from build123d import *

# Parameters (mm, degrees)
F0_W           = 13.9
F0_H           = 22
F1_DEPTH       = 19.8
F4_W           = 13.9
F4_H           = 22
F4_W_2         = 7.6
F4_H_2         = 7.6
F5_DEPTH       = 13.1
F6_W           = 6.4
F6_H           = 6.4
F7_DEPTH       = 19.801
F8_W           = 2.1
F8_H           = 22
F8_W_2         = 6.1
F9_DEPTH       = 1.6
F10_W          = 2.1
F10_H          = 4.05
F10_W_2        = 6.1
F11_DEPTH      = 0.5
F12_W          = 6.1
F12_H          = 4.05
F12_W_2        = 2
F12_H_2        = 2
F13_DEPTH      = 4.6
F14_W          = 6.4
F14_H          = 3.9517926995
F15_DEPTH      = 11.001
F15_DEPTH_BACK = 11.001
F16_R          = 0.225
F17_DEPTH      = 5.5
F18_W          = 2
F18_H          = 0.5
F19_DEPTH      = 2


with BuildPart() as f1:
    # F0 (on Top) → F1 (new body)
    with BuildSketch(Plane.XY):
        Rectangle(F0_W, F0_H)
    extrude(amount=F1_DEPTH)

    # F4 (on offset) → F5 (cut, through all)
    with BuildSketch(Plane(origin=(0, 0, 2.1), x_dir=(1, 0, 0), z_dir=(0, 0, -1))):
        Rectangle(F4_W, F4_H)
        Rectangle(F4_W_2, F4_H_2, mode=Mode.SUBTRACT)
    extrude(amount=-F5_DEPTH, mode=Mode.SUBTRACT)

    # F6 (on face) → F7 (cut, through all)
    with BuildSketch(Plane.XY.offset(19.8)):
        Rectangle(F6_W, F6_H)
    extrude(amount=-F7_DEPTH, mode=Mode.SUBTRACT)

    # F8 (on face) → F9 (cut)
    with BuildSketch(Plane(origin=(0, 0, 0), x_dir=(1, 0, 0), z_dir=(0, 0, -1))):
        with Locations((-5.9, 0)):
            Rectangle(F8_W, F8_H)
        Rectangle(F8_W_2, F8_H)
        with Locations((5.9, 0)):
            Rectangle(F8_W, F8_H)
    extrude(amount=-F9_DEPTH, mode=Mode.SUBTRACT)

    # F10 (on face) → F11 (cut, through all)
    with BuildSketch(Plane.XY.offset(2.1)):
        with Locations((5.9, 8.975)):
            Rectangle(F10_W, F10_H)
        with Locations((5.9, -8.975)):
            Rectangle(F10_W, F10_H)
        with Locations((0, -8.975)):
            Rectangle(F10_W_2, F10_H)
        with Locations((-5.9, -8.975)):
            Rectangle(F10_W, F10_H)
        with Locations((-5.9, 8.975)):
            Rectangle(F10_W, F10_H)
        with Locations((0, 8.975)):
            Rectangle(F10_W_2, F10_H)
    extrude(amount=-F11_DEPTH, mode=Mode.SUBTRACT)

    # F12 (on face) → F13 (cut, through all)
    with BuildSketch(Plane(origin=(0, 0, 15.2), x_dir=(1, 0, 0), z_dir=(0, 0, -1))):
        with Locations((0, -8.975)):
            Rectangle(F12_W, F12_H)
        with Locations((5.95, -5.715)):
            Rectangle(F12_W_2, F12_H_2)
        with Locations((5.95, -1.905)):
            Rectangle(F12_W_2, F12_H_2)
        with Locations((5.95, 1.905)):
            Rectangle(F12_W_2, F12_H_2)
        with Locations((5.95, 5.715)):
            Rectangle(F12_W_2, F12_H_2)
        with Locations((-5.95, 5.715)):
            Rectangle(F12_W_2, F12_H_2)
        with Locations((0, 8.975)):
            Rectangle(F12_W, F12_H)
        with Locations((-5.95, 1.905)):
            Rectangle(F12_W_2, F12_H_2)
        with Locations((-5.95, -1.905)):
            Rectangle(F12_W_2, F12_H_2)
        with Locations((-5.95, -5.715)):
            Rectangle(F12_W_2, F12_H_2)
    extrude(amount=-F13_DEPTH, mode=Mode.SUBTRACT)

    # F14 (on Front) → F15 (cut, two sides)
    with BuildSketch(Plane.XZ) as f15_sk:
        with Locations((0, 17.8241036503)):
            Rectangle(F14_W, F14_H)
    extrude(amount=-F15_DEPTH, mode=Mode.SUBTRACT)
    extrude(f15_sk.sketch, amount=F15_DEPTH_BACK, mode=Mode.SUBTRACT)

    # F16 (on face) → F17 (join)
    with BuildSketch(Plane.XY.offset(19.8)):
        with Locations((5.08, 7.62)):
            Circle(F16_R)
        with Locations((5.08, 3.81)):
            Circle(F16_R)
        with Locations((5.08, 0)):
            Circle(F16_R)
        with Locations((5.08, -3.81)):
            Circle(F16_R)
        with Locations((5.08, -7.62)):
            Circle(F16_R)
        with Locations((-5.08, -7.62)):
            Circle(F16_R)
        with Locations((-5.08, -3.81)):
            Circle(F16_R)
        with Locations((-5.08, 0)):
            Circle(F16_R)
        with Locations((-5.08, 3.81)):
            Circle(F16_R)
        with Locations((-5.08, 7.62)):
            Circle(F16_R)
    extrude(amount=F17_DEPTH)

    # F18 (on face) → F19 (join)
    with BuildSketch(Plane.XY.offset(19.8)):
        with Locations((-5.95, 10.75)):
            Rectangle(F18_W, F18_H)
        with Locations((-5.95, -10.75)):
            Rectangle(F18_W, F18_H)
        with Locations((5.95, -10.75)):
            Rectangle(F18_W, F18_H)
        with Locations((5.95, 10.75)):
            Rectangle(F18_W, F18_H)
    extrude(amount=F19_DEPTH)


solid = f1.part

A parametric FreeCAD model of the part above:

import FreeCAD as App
import Part
import Sketcher

V = App.Vector
Q = App.Units.Quantity


def add_polygon(sketch, points):
    """Adds a closed chain of lines whose ends are joined by coincident constraints."""
    first, n = sketch.GeometryCount, len(points)
    for a, b in zip(points, points[1:] + points[:1]):
        sketch.addGeometry(Part.LineSegment(App.Vector(*a, 0), App.Vector(*b, 0)), False)
    for i in range(n):
        sketch.addConstraint(Sketcher.Constraint("Coincident", first + i, 2, first + (i + 1) % n, 1))

doc = App.newDocument("Part")
params = doc.addObject("Spreadsheet::Sheet", "Params")
for row, (alias, value) in enumerate([
    ("sketch1_height", "22 mm"),
    ("sketch1_width", "13.9 mm"),
    ("pad1_length", "19.8 mm"),
    ("sketch2_height", "22 mm"),
    ("sketch2_width", "13.9 mm"),
    ("sketch2_width2", "7.6 mm"),
    ("pocket1_length", "13.1 mm"),
    ("sketch3_width", "6.4 mm"),
    ("sketch4_height", "22 mm"),
    ("sketch4_width", "2.1 mm"),
    ("sketch4_width2", "6.1 mm"),
    ("pocket3_length", "1.6 mm"),
    ("sketch5_width", "2.1 mm"),
    ("sketch5_width2", "6.1 mm"),
    ("sketch5_height", "4.05 mm"),
    ("sketch6_width", "2 mm"),
    ("sketch6_width2", "6.1 mm"),
    ("sketch6_height", "4.05 mm"),
    ("sketch7_width", "6.4 mm"),
    ("sketch8_diameter", "0.45 mm"),
    ("pad2_length", "5.5 mm"),
    ("sketch9_width", "2 mm"),
    ("sketch9_height", "0.5 mm"),
    ("pad3_length", "2 mm"),
], start=1):
    params.set(f"A{row}", alias)
    params.set(f"B{row}", "=" + value)
    params.setAlias(f"B{row}", alias)

body = doc.addObject("PartDesign::Body", "Body")

# Sketch on XY plane
sketch1 = doc.addObject("Sketcher::SketchObject", "Sketch")
body.addObject(sketch1)
sketch1.AttachmentSupport = (doc.XY_Plane, [""])
sketch1.MapMode = "FlatFace"
add_polygon(sketch1, [(-7, 11), (-7, -11), (7, -11), (7, 11)])  # lines 0-3
sketch1.addConstraint([
    Sketcher.Constraint("Vertical", 0),
    Sketcher.Constraint("Horizontal", 1),
    Sketcher.Constraint("Vertical", 2),
    Sketcher.Constraint("Horizontal", 3),
    Sketcher.Constraint("Symmetric", 0, 2, 2, 2, -1, 1),
    Sketcher.Constraint("DistanceY", 0, 2, 0, 1, Q("22 mm")),
    Sketcher.Constraint("DistanceX", 1, 1, 1, 2, Q("13.9 mm")),
])
sketch1.setExpression("Constraints[9]", "Params.sketch1_height")
sketch1.setExpression("Constraints[10]", "Params.sketch1_width")
pad1 = doc.addObject("PartDesign::Pad", "Pad")
body.addObject(pad1)
pad1.Profile = sketch1
pad1.setExpression("Length", "Params.pad1_length")

# Sketch on XY plane
sketch2 = doc.addObject("Sketcher::SketchObject", "Sketch001")
body.addObject(sketch2)
sketch2.AttachmentSupport = (doc.XY_Plane, [""])
sketch2.MapMode = "FlatFace"
sketch2.AttachmentOffset = App.Placement(V(0, 0, 2.1), App.Rotation())
add_polygon(sketch2, [(-7, -11), (-7, 11), (7, 11), (7, -11)])  # lines 0-3
add_polygon(sketch2, [(4, 4), (-4, 4), (-4, -4), (4, -4)])  # lines 4-7
sketch2.addConstraint([
    Sketcher.Constraint("Vertical", 0),
    Sketcher.Constraint("Horizontal", 1),
    Sketcher.Constraint("Vertical", 2),
    Sketcher.Constraint("Horizontal", 3),
    Sketcher.Constraint("Horizontal", 4),
    Sketcher.Constraint("Vertical", 5),
    Sketcher.Constraint("Horizontal", 6),
    Sketcher.Constraint("Vertical", 7),
    Sketcher.Constraint("Symmetric", 0, 2, 2, 2, -1, 1),
    Sketcher.Constraint("Symmetric", 4, 2, 6, 2, -1, 1),
    Sketcher.Constraint("Equal", 6, 5),
    Sketcher.Constraint("DistanceY", 0, 1, 0, 2, Q("22 mm")),
    Sketcher.Constraint("DistanceX", 1, 1, 1, 2, Q("13.9 mm")),
    Sketcher.Constraint("DistanceX", 4, 2, 4, 1, Q("7.6 mm")),
])
sketch2.setExpression("Constraints[19]", "Params.sketch2_height")
sketch2.setExpression("Constraints[20]", "Params.sketch2_width")
sketch2.setExpression("Constraints[21]", "Params.sketch2_width2")
pocket1 = doc.addObject("PartDesign::Pocket", "Pocket")
body.addObject(pocket1)
pocket1.Profile = sketch2
pocket1.setExpression("Length", "Params.pocket1_length")
pocket1.Reversed = True

# Sketch on XY plane
sketch3 = doc.addObject("Sketcher::SketchObject", "Sketch002")
body.addObject(sketch3)
sketch3.AttachmentSupport = (doc.XY_Plane, [""])
sketch3.MapMode = "FlatFace"
sketch3.AttachmentOffset = App.Placement(V(0, 0, 19.8), App.Rotation())
add_polygon(sketch3, [(-3, 3), (-3, -3), (3, -3), (3, 3)])  # lines 0-3
sketch3.addConstraint([
    Sketcher.Constraint("Vertical", 0),
    Sketcher.Constraint("Horizontal", 1),
    Sketcher.Constraint("Vertical", 2),
    Sketcher.Constraint("Horizontal", 3),
    Sketcher.Constraint("Symmetric", 0, 2, 2, 2, -1, 1),
    Sketcher.Constraint("Equal", 3, 0),
    Sketcher.Constraint("DistanceX", 1, 1, 1, 2, Q("6.4 mm")),
])
sketch3.setExpression("Constraints[10]", "Params.sketch3_width")
pocket2 = doc.addObject("PartDesign::Pocket", "Pocket001")
body.addObject(pocket2)
pocket2.Profile = sketch3
pocket2.Type = "ThroughAll"

# Sketch on XY plane
sketch4 = doc.addObject("Sketcher::SketchObject", "Sketch003")
body.addObject(sketch4)
sketch4.AttachmentSupport = (doc.XY_Plane, [""])
sketch4.MapMode = "FlatFace"
add_polygon(sketch4, [(-7, -11), (-7, 11), (-4.8, 11), (-4.8, -11)])  # lines 0-3
add_polygon(sketch4, [(-3, -11), (-3, 11), (3, 11), (3, -11)])  # lines 4-7
add_polygon(sketch4, [(4.8, -11), (4.8, 11), (7, 11), (7, -11)])  # lines 8-11
sketch4.addConstraint([
    Sketcher.Constraint("Vertical", 0),
    Sketcher.Constraint("Horizontal", 1),
    Sketcher.Constraint("Vertical", 2),
    Sketcher.Constraint("Horizontal", 3),
    Sketcher.Constraint("Vertical", 4),
    Sketcher.Constraint("Horizontal", 5),
    Sketcher.Constraint("Vertical", 6),
    Sketcher.Constraint("Horizontal", 7),
    Sketcher.Constraint("Vertical", 8),
    Sketcher.Constraint("Horizontal", 9),
    Sketcher.Constraint("Vertical", 10),
    Sketcher.Constraint("Horizontal", 11),
    Sketcher.Constraint("Symmetric", 4, 2, 6, 2, -1, 1),
    Sketcher.Constraint("Symmetric", 2, 2, 8, 2, -1, 1),
    Sketcher.Constraint("Symmetric", 0, 2, 10, 2, -1, 1),
    Sketcher.Constraint("Horizontal", 1, 2, 4, 2),
    Sketcher.Constraint("Horizontal", 3, 2, 6, 2),
    Sketcher.Constraint("DistanceY", 0, 1, 0, 2, Q("22 mm")),
    Sketcher.Constraint("DistanceX", 1, 1, 1, 2, Q("2.1 mm")),
    Sketcher.Constraint("DistanceX", 5, 1, 5, 2, Q("6.1 mm")),
    Sketcher.Constraint("DistanceX", 0, 2, 5, 2, Q("10 mm")),
])
sketch4.setExpression("Constraints[29]", "Params.sketch4_height")
sketch4.setExpression("Constraints[30]", "Params.sketch4_width")
sketch4.setExpression("Constraints[31]", "Params.sketch4_width2")
pocket3 = doc.addObject("PartDesign::Pocket", "Pocket002")
body.addObject(pocket3)
pocket3.Profile = sketch4
pocket3.setExpression("Length", "Params.pocket3_length")
pocket3.Reversed = True

# Sketch on XY plane
sketch5 = doc.addObject("Sketcher::SketchObject", "Sketch004")
body.addObject(sketch5)
sketch5.AttachmentSupport = (doc.XY_Plane, [""])
sketch5.MapMode = "FlatFace"
sketch5.AttachmentOffset = App.Placement(V(0, 0, 2.1), App.Rotation())
add_polygon(sketch5, [(4.8, 11), (4.8, 7), (7, 7), (7, 11)])  # lines 0-3
add_polygon(sketch5, [(4.8, -7), (4.8, -11), (7, -11), (7, -7)])  # lines 4-7
add_polygon(sketch5, [(-3, -7), (-3, -11), (3, -11), (3, -7)])  # lines 8-11
add_polygon(sketch5, [(-7, -7), (-7, -11), (-4.8, -11), (-4.8, -7)])  # lines 12-15
add_polygon(sketch5, [(-7, 11), (-7, 7), (-4.8, 7), (-4.8, 11)])  # lines 16-19
add_polygon(sketch5, [(-3, 11), (-3, 7), (3, 7), (3, 11)])  # lines 20-23
sketch5.addConstraint([
    Sketcher.Constraint("Vertical", 0),
    Sketcher.Constraint("Horizontal", 1),
    Sketcher.Constraint("Vertical", 2),
    Sketcher.Constraint("Horizontal", 3),
    Sketcher.Constraint("Vertical", 4),
    Sketcher.Constraint("Horizontal", 5),
    Sketcher.Constraint("Vertical", 6),
    Sketcher.Constraint("Horizontal", 7),
    Sketcher.Constraint("Vertical", 8),
    Sketcher.Constraint("Horizontal", 9),
    Sketcher.Constraint("Vertical", 10),
    Sketcher.Constraint("Horizontal", 11),
    Sketcher.Constraint("Vertical", 12),
    Sketcher.Constraint("Horizontal", 13),
    Sketcher.Constraint("Vertical", 14),
    Sketcher.Constraint("Horizontal", 15),
    Sketcher.Constraint("Vertical", 16),
    Sketcher.Constraint("Horizontal", 17),
    Sketcher.Constraint("Vertical", 18),
    Sketcher.Constraint("Horizontal", 19),
    Sketcher.Constraint("Vertical", 20),
    Sketcher.Constraint("Horizontal", 21),
    Sketcher.Constraint("Vertical", 22),
    Sketcher.Constraint("Horizontal", 23),
    Sketcher.Constraint("Symmetric", 2, 2, 12, 2, -1, 1),
    Sketcher.Constraint("Symmetric", 0, 2, 14, 2, -1, 1),
    Sketcher.Constraint("Symmetric", 6, 2, 16, 2, -1, 1),
    Sketcher.Constraint("Symmetric", 4, 2, 18, 2, -1, 1),
    Sketcher.Constraint("Symmetric", 10, 2, 20, 2, -1, 1),
    Sketcher.Constraint("Symmetric", 8, 2, 22, 2, -1, 1),
    Sketcher.Constraint("Symmetric", 5, 2, 12, 2, -2),
    Sketcher.Constraint("Symmetric", 7, 2, 14, 2, -2),
    Sketcher.Constraint("Horizontal", 5, 2, 8, 2),
    Sketcher.Constraint("Horizontal", 7, 2, 10, 2),
    Sketcher.Constraint("Vertical", 11, 2, 20, 2),
    Sketcher.Constraint("DistanceX", 1, 1, 1, 2, Q("2.1 mm")),
    Sketcher.Constraint("DistanceX", 9, 1, 9, 2, Q("6.1 mm")),
    Sketcher.Constraint("DistanceY", -1, 1, 2, 2, Q("11 mm")),
    Sketcher.Constraint("DistanceX", 8, 2, 5, 2, Q("10 mm")),
    Sketcher.Constraint("DistanceY", 0, 2, 0, 1, Q("4.05 mm")),
])
sketch5.setExpression("Constraints[59]", "Params.sketch5_width")
sketch5.setExpression("Constraints[60]", "Params.sketch5_width2")
sketch5.setExpression("Constraints[63]", "Params.sketch5_height")
pocket4 = doc.addObject("PartDesign::Pocket", "Pocket003")
body.addObject(pocket4)
pocket4.Profile = sketch5
pocket4.Type = "ThroughAll"

# Sketch on XY plane
sketch6 = doc.addObject("Sketcher::SketchObject", "Sketch005")
body.addObject(sketch6)
sketch6.AttachmentSupport = (doc.XY_Plane, [""])
sketch6.MapMode = "FlatFace"
sketch6.AttachmentOffset = App.Placement(V(0, 0, 15.2), App.Rotation())
add_polygon(sketch6, [(-3, 7), (-3, 11), (3, 11), (3, 7)])  # lines 0-3
add_polygon(sketch6, [(5, 4.7), (5, 6.7), (7, 6.7), (7, 4.7)])  # lines 4-7
add_polygon(sketch6, [(5, 0.9), (5, 2.9), (7, 2.9), (7, 0.9)])  # lines 8-11
add_polygon(sketch6, [(5, -2.9), (5, -0.9), (7, -0.9), (7, -2.9)])  # lines 12-15
add_polygon(sketch6, [(5, -6.7), (5, -4.7), (7, -4.7), (7, -6.7)])  # lines 16-19
add_polygon(sketch6, [(-7, -6.7), (-7, -4.7), (-5, -4.7), (-5, -6.7)])  # lines 20-23
add_polygon(sketch6, [(-3, -11), (-3, -7), (3, -7), (3, -11)])  # lines 24-27
add_polygon(sketch6, [(-7, -2.9), (-7, -0.9), (-5, -0.9), (-5, -2.9)])  # lines 28-31
add_polygon(sketch6, [(-7, 0.9), (-7, 2.9), (-5, 2.9), (-5, 0.9)])  # lines 32-35
add_polygon(sketch6, [(-7, 4.7), (-7, 6.7), (-5, 6.7), (-5, 4.7)])  # lines 36-39
sketch6.addConstraint([
    Sketcher.Constraint("Vertical", 0),
    Sketcher.Constraint("Horizontal", 1),
    Sketcher.Constraint("Vertical", 2),
    Sketcher.Constraint("Horizontal", 3),
    Sketcher.Constraint("Vertical", 4),
    Sketcher.Constraint("Horizontal", 5),
    Sketcher.Constraint("Vertical", 6),
    Sketcher.Constraint("Horizontal", 7),
    Sketcher.Constraint("Vertical", 8),
    Sketcher.Constraint("Horizontal", 9),
    Sketcher.Constraint("Vertical", 10),
    Sketcher.Constraint("Horizontal", 11),
    Sketcher.Constraint("Vertical", 12),
    Sketcher.Constraint("Horizontal", 13),
    Sketcher.Constraint("Vertical", 14),
    Sketcher.Constraint("Horizontal", 15),
    Sketcher.Constraint("Vertical", 16),
    Sketcher.Constraint("Horizontal", 17),
    Sketcher.Constraint("Vertical", 18),
    Sketcher.Constraint("Horizontal", 19),
    Sketcher.Constraint("Vertical", 20),
    Sketcher.Constraint("Horizontal", 21),
    Sketcher.Constraint("Vertical", 22),
    Sketcher.Constraint("Horizontal", 23),
    Sketcher.Constraint("Vertical", 24),
    Sketcher.Constraint("Horizontal", 25),
    Sketcher.Constraint("Vertical", 26),
    Sketcher.Constraint("Horizontal", 27),
    Sketcher.Constraint("Vertical", 28),
    Sketcher.Constraint("Horizontal", 29),
    Sketcher.Constraint("Vertical", 30),
    Sketcher.Constraint("Horizontal", 31),
    Sketcher.Constraint("Vertical", 32),
    Sketcher.Constraint("Horizontal", 33),
    Sketcher.Constraint("Vertical", 34),
    Sketcher.Constraint("Horizontal", 35),
    Sketcher.Constraint("Vertical", 36),
    Sketcher.Constraint("Horizontal", 37),
    Sketcher.Constraint("Vertical", 38),
    Sketcher.Constraint("Horizontal", 39),
    Sketcher.Constraint("Symmetric", 6, 2, 20, 2, -1, 1),
    Sketcher.Constraint("Symmetric", 4, 2, 22, 2, -1, 1),
    Sketcher.Constraint("Symmetric", 2, 2, 24, 2, -1, 1),
    Sketcher.Constraint("Symmetric", 0, 2, 26, 2, -1, 1),
    Sketcher.Constraint("Symmetric", 10, 2, 28, 2, -1, 1),
    Sketcher.Constraint("Symmetric", 8, 2, 30, 2, -1, 1),
    Sketcher.Constraint("Symmetric", 14, 2, 32, 2, -1, 1),
    Sketcher.Constraint("Symmetric", 12, 2, 34, 2, -1, 1),
    Sketcher.Constraint("Symmetric", 18, 2, 36, 2, -1, 1),
    Sketcher.Constraint("Symmetric", 16, 2, 38, 2, -1, 1),
    Sketcher.Constraint("Symmetric", 17, 2, 20, 2, -2),
    Sketcher.Constraint("Symmetric", 19, 2, 22, 2, -2),
    Sketcher.Constraint("Symmetric", 13, 2, 28, 2, -2),
    Sketcher.Constraint("Symmetric", 15, 2, 30, 2, -2),
    Sketcher.Constraint("Vertical", 7, 2, 8, 2),
    Sketcher.Constraint("Vertical", 6, 2, 9, 2),
    Sketcher.Constraint("Vertical", 3, 2, 24, 2),
    Sketcher.Constraint("Equal", 39, 4),
    Sketcher.Constraint("Equal", 6, 8),
    Sketcher.Constraint("DistanceX", 5, 1, 5, 2, Q("2 mm")),
    Sketcher.Constraint("DistanceX", 1, 1, 1, 2, Q("6.1 mm")),
    Sketcher.Constraint("DistanceY", -1, 1, 0, 2, Q("11 mm")),
    Sketcher.Constraint("DistanceX", 3, 2, 4, 2, Q("8 mm")),
    Sketcher.Constraint("DistanceY", 0, 1, 0, 2, Q("4.05 mm")),
    Sketcher.Constraint("DistanceY", 8, 2, 7, 2, Q("1.81 mm")),
    Sketcher.Constraint("DistanceY", 12, 2, 11, 2, Q("1.81 mm")),
])
sketch6.setExpression("Constraints[99]", "Params.sketch6_width")
sketch6.setExpression("Constraints[100]", "Params.sketch6_width2")
sketch6.setExpression("Constraints[103]", "Params.sketch6_height")
pocket5 = doc.addObject("PartDesign::Pocket", "Pocket004")
body.addObject(pocket5)
pocket5.Profile = sketch6
pocket5.Type = "ThroughAll"
pocket5.Reversed = True

# Sketch on XZ plane
sketch7 = doc.addObject("Sketcher::SketchObject", "Sketch006")
body.addObject(sketch7)
sketch7.AttachmentSupport = (doc.XZ_Plane, [""])
sketch7.MapMode = "FlatFace"
add_polygon(sketch7, [(-3.2, 19.8), (-3.2, 15.8), (3.2, 15.8), (3.2, 19.8)])  # lines 0-3
sketch7.addConstraint([
    Sketcher.Constraint("Vertical", 0),
    Sketcher.Constraint("Horizontal", 1),
    Sketcher.Constraint("Vertical", 2),
    Sketcher.Constraint("Horizontal", 3),
    Sketcher.Constraint("DistanceX", 1, 1, 1, 2, Q("6.4 mm")),
    Sketcher.Constraint("DistanceX", 0, 2, -1, 1, Q("3.2 mm")),
    Sketcher.Constraint("DistanceY", -1, 1, 2, 2, Q("19.8 mm")),
    Sketcher.Constraint("DistanceY", 0, 2, 0, 1, Q("3.951793 mm")),
])
sketch7.setExpression("Constraints[8]", "Params.sketch7_width")
pocket6 = doc.addObject("PartDesign::Pocket", "Pocket005")
body.addObject(pocket6)
pocket6.Profile = sketch7
pocket6.Type = "ThroughAll"
pocket6.Midplane = True

# Sketch on XY plane
sketch8 = doc.addObject("Sketcher::SketchObject", "Sketch007")
body.addObject(sketch8)
sketch8.AttachmentSupport = (doc.XY_Plane, [""])
sketch8.MapMode = "FlatFace"
sketch8.AttachmentOffset = App.Placement(V(0, 0, 19.8), App.Rotation())
sketch8.addGeometry([
    Part.Circle(V(5.08, 7.62, 0), V(0, 0, 1), 0.23),  # 0
    Part.Circle(V(5.08, 3.81, 0), V(0, 0, 1), 0.23),  # 1
    Part.Circle(V(5.08, 0, 0), V(0, 0, 1), 0.23),  # 2
    Part.Circle(V(5.08, -3.81, 0), V(0, 0, 1), 0.23),  # 3
    Part.Circle(V(5.08, -7.62, 0), V(0, 0, 1), 0.23),  # 4
    Part.Circle(V(-5.08, -7.62, 0), V(0, 0, 1), 0.23),  # 5
    Part.Circle(V(-5.08, -3.81, 0), V(0, 0, 1), 0.23),  # 6
    Part.Circle(V(-5.08, 0, 0), V(0, 0, 1), 0.23),  # 7
    Part.Circle(V(-5.08, 3.81, 0), V(0, 0, 1), 0.23),  # 8
    Part.Circle(V(-5.08, 7.62, 0), V(0, 0, 1), 0.23),  # 9
], False)
sketch8.addConstraint([
    Sketcher.Constraint("Equal", 0, 1),
    Sketcher.Constraint("Equal", 1, 2),
    Sketcher.Constraint("Equal", 2, 3),
    Sketcher.Constraint("Equal", 3, 4),
    Sketcher.Constraint("Equal", 4, 5),
    Sketcher.Constraint("Equal", 5, 6),
    Sketcher.Constraint("Equal", 6, 7),
    Sketcher.Constraint("Equal", 7, 8),
    Sketcher.Constraint("Equal", 8, 9),
    Sketcher.Constraint("Symmetric", 0, 3, 5, 3, -1, 1),
    Sketcher.Constraint("Symmetric", 1, 3, 6, 3, -1, 1),
    Sketcher.Constraint("Symmetric", 2, 3, 7, 3, -1, 1),
    Sketcher.Constraint("Symmetric", 3, 3, 8, 3, -1, 1),
    Sketcher.Constraint("Symmetric", 4, 3, 9, 3, -1, 1),
    Sketcher.Constraint("Symmetric", 4, 3, 5, 3, -2),
    Sketcher.Constraint("Symmetric", 3, 3, 6, 3, -2),
    Sketcher.Constraint("PointOnObject", 2, 3, -1),
    Sketcher.Constraint("Vertical", 0, 3, 1, 3),
    Sketcher.Constraint("Vertical", 1, 3, 2, 3),
    Sketcher.Constraint("Diameter", 0, Q("0.45 mm")),
    Sketcher.Constraint("DistanceX", -1, 1, 0, 3, Q("5.08 mm")),
    Sketcher.Constraint("DistanceY", -1, 1, 0, 3, Q("7.62 mm")),
    Sketcher.Constraint("DistanceY", -1, 1, 1, 3, Q("3.81 mm")),
])
sketch8.setExpression("Constraints[19]", "Params.sketch8_diameter")
pad2 = doc.addObject("PartDesign::Pad", "Pad001")
body.addObject(pad2)
pad2.Profile = sketch8
pad2.setExpression("Length", "Params.pad2_length")

# Sketch on XY plane
sketch9 = doc.addObject("Sketcher::SketchObject", "Sketch008")
body.addObject(sketch9)
sketch9.AttachmentSupport = (doc.XY_Plane, [""])
sketch9.MapMode = "FlatFace"
sketch9.AttachmentOffset = App.Placement(V(0, 0, 19.8), App.Rotation())
add_polygon(sketch9, [(-7, 11), (-7, 10.5), (-5, 10.5), (-5, 11)])  # lines 0-3
add_polygon(sketch9, [(-7, -10.5), (-7, -11), (-5, -11), (-5, -10.5)])  # lines 4-7
add_polygon(sketch9, [(5, -10.5), (5, -11), (7, -11), (7, -10.5)])  # lines 8-11
add_polygon(sketch9, [(5, 11), (5, 10.5), (7, 10.5), (7, 11)])  # lines 12-15
sketch9.addConstraint([
    Sketcher.Constraint("Vertical", 0),
    Sketcher.Constraint("Horizontal", 1),
    Sketcher.Constraint("Vertical", 2),
    Sketcher.Constraint("Horizontal", 3),
    Sketcher.Constraint("Vertical", 4),
    Sketcher.Constraint("Horizontal", 5),
    Sketcher.Constraint("Vertical", 6),
    Sketcher.Constraint("Horizontal", 7),
    Sketcher.Constraint("Vertical", 8),
    Sketcher.Constraint("Horizontal", 9),
    Sketcher.Constraint("Vertical", 10),
    Sketcher.Constraint("Horizontal", 11),
    Sketcher.Constraint("Vertical", 12),
    Sketcher.Constraint("Horizontal", 13),
    Sketcher.Constraint("Vertical", 14),
    Sketcher.Constraint("Horizontal", 15),
    Sketcher.Constraint("Symmetric", 2, 2, 8, 2, -1, 1),
    Sketcher.Constraint("Symmetric", 0, 2, 10, 2, -1, 1),
    Sketcher.Constraint("Symmetric", 6, 2, 12, 2, -1, 1),
    Sketcher.Constraint("Symmetric", 4, 2, 14, 2, -1, 1),
    Sketcher.Constraint("Symmetric", 5, 2, 8, 2, -2),
    Sketcher.Constraint("Symmetric", 7, 2, 10, 2, -2),
    Sketcher.Constraint("DistanceX", 1, 1, 1, 2, Q("2 mm")),
    Sketcher.Constraint("DistanceY", 0, 2, 0, 1, Q("0.5 mm")),
    Sketcher.Constraint("DistanceY", -1, 1, 2, 2, Q("11 mm")),
    Sketcher.Constraint("DistanceX", 5, 2, 8, 2, Q("9.9 mm")),
])
sketch9.setExpression("Constraints[38]", "Params.sketch9_width")
sketch9.setExpression("Constraints[39]", "Params.sketch9_height")
pad3 = doc.addObject("PartDesign::Pad", "Pad002")
body.addObject(pad3)
pad3.Profile = sketch9
pad3.setExpression("Length", "Params.pad3_length")

doc.recompute()
